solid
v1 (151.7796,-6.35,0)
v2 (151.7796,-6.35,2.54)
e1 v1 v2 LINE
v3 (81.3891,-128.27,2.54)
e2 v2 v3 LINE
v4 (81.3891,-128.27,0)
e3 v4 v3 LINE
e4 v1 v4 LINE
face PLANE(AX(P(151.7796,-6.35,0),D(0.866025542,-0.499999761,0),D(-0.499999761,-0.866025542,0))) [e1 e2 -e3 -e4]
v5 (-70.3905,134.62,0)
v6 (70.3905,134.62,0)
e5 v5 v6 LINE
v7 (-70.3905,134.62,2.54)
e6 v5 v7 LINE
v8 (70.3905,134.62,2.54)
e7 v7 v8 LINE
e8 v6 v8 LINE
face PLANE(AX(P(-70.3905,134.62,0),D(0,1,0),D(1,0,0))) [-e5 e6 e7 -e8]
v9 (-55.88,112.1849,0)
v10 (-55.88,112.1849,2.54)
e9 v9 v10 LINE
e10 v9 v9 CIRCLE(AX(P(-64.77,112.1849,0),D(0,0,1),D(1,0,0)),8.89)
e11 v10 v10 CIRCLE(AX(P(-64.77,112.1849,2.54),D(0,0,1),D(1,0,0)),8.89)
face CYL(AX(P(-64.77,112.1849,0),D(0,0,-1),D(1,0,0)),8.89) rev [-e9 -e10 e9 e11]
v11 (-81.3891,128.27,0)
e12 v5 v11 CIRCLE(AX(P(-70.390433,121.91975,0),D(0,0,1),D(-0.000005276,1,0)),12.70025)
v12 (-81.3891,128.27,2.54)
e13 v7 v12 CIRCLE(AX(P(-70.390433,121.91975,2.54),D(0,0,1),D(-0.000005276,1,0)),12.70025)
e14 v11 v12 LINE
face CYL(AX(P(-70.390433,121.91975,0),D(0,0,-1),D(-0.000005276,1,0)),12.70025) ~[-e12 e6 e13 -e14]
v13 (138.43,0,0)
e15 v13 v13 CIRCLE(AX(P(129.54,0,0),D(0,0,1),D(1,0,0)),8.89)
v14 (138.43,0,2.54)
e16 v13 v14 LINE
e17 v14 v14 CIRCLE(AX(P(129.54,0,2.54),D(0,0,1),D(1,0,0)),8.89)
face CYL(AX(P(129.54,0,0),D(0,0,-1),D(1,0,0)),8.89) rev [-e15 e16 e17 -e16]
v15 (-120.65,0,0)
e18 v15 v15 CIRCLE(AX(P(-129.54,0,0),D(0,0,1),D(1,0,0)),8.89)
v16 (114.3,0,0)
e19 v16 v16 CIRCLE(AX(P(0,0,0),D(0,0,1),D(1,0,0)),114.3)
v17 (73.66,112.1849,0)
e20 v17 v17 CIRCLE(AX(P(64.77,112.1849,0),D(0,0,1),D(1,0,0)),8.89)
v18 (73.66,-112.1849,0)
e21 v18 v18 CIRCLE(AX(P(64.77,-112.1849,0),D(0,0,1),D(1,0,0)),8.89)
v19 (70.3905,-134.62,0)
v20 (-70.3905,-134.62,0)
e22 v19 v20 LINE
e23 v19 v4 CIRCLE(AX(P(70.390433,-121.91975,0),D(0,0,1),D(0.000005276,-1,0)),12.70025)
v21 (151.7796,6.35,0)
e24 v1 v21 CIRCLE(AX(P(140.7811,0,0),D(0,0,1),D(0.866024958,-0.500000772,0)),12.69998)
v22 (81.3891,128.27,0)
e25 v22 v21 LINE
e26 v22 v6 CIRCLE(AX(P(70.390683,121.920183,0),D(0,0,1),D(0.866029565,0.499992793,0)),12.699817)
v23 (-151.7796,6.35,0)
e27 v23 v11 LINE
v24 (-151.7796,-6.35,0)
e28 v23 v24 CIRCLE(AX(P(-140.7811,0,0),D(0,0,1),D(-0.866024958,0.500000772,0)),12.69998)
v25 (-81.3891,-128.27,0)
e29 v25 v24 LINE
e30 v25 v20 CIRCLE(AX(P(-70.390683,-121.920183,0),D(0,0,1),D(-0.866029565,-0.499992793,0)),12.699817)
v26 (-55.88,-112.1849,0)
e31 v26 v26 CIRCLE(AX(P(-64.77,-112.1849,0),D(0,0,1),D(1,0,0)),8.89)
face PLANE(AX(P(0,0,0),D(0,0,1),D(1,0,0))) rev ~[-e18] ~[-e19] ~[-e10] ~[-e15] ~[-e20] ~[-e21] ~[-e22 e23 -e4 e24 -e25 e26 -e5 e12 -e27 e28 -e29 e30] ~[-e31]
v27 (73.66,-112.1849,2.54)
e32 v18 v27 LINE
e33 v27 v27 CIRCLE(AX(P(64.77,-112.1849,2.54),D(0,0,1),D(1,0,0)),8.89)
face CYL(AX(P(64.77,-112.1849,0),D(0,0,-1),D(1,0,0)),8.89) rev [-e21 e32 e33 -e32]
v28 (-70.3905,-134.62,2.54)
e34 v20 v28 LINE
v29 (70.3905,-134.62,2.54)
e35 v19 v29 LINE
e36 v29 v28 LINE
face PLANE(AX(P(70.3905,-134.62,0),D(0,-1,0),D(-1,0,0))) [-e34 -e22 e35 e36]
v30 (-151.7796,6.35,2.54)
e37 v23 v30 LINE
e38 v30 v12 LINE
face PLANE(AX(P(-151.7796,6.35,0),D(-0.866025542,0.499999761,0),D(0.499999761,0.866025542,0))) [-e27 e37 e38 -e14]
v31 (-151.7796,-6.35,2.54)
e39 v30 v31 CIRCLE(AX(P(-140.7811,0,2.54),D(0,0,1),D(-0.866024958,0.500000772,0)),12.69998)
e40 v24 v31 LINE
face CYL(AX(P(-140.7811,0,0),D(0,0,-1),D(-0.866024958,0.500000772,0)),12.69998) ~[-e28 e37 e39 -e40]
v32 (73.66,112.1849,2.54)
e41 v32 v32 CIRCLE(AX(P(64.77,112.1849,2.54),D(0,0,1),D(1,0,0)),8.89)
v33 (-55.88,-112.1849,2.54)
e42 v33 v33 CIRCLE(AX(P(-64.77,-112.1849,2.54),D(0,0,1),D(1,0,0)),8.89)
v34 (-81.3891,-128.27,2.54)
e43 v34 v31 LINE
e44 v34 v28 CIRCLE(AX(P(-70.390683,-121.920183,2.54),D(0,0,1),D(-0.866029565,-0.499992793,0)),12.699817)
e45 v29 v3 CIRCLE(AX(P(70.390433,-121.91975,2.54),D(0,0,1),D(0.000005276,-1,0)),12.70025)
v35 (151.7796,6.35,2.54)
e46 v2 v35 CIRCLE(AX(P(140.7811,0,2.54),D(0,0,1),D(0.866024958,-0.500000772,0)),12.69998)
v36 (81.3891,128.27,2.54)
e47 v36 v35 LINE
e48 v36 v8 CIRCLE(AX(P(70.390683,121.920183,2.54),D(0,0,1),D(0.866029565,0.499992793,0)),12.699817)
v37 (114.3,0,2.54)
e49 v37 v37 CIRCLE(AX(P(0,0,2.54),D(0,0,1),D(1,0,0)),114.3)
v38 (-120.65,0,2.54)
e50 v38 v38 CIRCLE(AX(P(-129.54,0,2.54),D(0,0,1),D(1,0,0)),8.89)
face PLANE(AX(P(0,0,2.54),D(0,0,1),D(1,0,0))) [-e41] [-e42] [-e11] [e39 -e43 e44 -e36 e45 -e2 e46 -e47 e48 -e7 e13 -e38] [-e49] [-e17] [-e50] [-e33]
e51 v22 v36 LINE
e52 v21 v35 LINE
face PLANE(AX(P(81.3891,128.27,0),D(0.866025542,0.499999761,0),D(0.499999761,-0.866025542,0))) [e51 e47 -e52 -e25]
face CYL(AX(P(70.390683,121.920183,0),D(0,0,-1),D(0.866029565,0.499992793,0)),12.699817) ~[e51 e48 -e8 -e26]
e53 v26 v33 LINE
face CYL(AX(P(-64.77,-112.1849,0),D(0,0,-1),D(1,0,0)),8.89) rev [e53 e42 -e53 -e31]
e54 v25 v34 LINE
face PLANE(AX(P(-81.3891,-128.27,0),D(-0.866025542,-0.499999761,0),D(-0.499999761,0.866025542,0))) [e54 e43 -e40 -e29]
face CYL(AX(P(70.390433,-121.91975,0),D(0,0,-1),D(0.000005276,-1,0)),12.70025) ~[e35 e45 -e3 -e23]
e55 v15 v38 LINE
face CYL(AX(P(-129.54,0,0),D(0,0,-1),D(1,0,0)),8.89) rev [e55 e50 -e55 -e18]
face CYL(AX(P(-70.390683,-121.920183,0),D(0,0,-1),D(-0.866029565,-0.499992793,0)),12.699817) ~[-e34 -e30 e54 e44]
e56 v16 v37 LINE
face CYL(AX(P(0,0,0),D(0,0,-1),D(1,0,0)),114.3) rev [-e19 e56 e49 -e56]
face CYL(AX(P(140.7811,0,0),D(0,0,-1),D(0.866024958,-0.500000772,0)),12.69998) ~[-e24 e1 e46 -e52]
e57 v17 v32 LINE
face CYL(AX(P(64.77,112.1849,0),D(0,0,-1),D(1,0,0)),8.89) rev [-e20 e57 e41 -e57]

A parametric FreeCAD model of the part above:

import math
import FreeCAD as App
import Part
import Sketcher

V = App.Vector
Q = App.Units.Quantity

doc = App.newDocument("Part")
body = doc.addObject("PartDesign::Body", "Body")

# Sketch on XY plane
sketch1 = body.newObject("Sketcher::SketchObject", "Sketch")
sketch1.AttachmentSupport = (doc.getObject("XY_Plane"), [""])
sketch1.MapMode = "FlatFace"
sketch1.addGeometry(Part.LineSegment(V(81, -128, 0), V(152, -6, 0)), False)
sketch1.addGeometry(Part.ArcOfCircle(Part.Circle(V(141, 0, 0), V(0, 0, 1), 13), math.radians(-30), math.radians(30)), False)
sketch1.addGeometry(Part.LineSegment(V(152, 6, 0), V(81, 128, 0)), False)
sketch1.addGeometry(Part.ArcOfCircle(Part.Circle(V(70, 122, 0), V(0, 0, 1), 13), math.radians(30), math.radians(90)), False)
sketch1.addGeometry(Part.LineSegment(V(70, 135, 0), V(-70, 135, 0)), False)
sketch1.addGeometry(Part.ArcOfCircle(Part.Circle(V(-70, 122, 0), V(0, 0, 1), 13), math.radians(90), math.radians(150)), False)
sketch1.addGeometry(Part.LineSegment(V(-81, 128, 0), V(-152, 6, 0)), False)
sketch1.addGeometry(Part.ArcOfCircle(Part.Circle(V(-141, 0, 0), V(0, 0, 1), 13), math.radians(150), math.radians(210)), False)
sketch1.addGeometry(Part.LineSegment(V(-152, -6, 0), V(-81, -128, 0)), False)
sketch1.addGeometry(Part.ArcOfCircle(Part.Circle(V(-70, -122, 0), V(0, 0, 1), 13), math.radians(-150), math.radians(-90)), False)
sketch1.addGeometry(Part.LineSegment(V(-70, -135, 0), V(70, -135, 0)), False)
sketch1.addGeometry(Part.ArcOfCircle(Part.Circle(V(70, -122, 0), V(0, 0, 1), 13), math.radians(-90), math.radians(-30)), False)
sketch1.addGeometry(Part.Circle(V(-65, -112, 0), V(0, 0, 1), 9), False)
sketch1.addGeometry(Part.Circle(V(65, -112, 0), V(0, 0, 1), 9), False)
sketch1.addGeometry(Part.Circle(V(-130, 0, 0), V(0, 0, 1), 9), False)
sketch1.addGeometry(Part.Circle(V(0, 0, 0), V(0, 0, 1), 114), False)
sketch1.addGeometry(Part.Circle(V(-65, 112, 0), V(0, 0, 1), 9), False)
sketch1.addGeometry(Part.Circle(V(130, 0, 0), V(0, 0, 1), 9), False)
sketch1.addGeometry(Part.Circle(V(65, 112, 0), V(0, 0, 1), 9), False)
sketch1.addConstraint(Sketcher.Constraint("Tangent", 0, 2, 1, 1))
sketch1.addConstraint(Sketcher.Constraint("Tangent", 1, 2, 2, 1))
sketch1.addConstraint(Sketcher.Constraint("Tangent", 2, 2, 3, 1))
sketch1.addConstraint(Sketcher.Constraint("Tangent", 3, 2, 4, 1))
sketch1.addConstraint(Sketcher.Constraint("Tangent", 4, 2, 5, 1))
sketch1.addConstraint(Sketcher.Constraint("Tangent", 5, 2, 6, 1))
sketch1.addConstraint(Sketcher.Constraint("Tangent", 6, 2, 7, 1))
sketch1.addConstraint(Sketcher.Constraint("Tangent", 7, 2, 8, 1))
sketch1.addConstraint(Sketcher.Constraint("Tangent", 8, 2, 9, 1))
sketch1.addConstraint(Sketcher.Constraint("Tangent", 9, 2, 10, 1))
sketch1.addConstraint(Sketcher.Constraint("Tangent", 10, 2, 11, 1))
sketch1.addConstraint(Sketcher.Constraint("Tangent", 11, 2, 0, 1))
sketch1.addConstraint(Sketcher.Constraint("Horizontal", 4))
sketch1.addConstraint(Sketcher.Constraint("Horizontal", 10))
sketch1.addConstraint(Sketcher.Constraint("Coincident", 15, 3, -1, 1))
sketch1.addConstraint(Sketcher.Constraint("Equal", 1, 3))
sketch1.addConstraint(Sketcher.Constraint("Equal", 3, 5))
sketch1.addConstraint(Sketcher.Constraint("Equal", 5, 7))
sketch1.addConstraint(Sketcher.Constraint("Equal", 7, 9))
sketch1.addConstraint(Sketcher.Constraint("Equal", 9, 11))
sketch1.addConstraint(Sketcher.Constraint("Equal", 12, 13))
sketch1.addConstraint(Sketcher.Constraint("Equal", 13, 14))
sketch1.addConstraint(Sketcher.Constraint("Equal", 14, 16))
sketch1.addConstraint(Sketcher.Constraint("Equal", 16, 17))
sketch1.addConstraint(Sketcher.Constraint("Equal", 17, 18))
sketch1.addConstraint(Sketcher.Constraint("Symmetric", 1, 3, 7, 3, -1, 1))
sketch1.addConstraint(Sketcher.Constraint("Symmetric", 3, 3, 9, 3, -1, 1))
sketch1.addConstraint(Sketcher.Constraint("Symmetric", 13, 3, 16, 3, -1, 1))
sketch1.addConstraint(Sketcher.Constraint("Symmetric", 14, 3, 17, 3, -1, 1))
sketch1.addConstraint(Sketcher.Constraint("Symmetric", 12, 3, 18, 3, -1, 1))
sketch1.addConstraint(Sketcher.Constraint("Symmetric", 12, 3, 13, 3, -2))
sketch1.addConstraint(Sketcher.Constraint("Symmetric", 2, 2, 5, 2, -2))
sketch1.addConstraint(Sketcher.Constraint("PointOnObject", 14, 3, -1))
sketch1.addConstraint(Sketcher.Constraint("Parallel", 0, 6))
sketch1.addConstraint(Sketcher.Constraint("Diameter", 15, Q("9 in")))
sketch1.addConstraint(Sketcher.Constraint("Diameter", 12, Q("0.7 in")))
sketch1.addConstraint(Sketcher.Constraint("Radius", 1, Q("0.5 in")))
sketch1.addConstraint(Sketcher.Constraint("DistanceY", 0, 2, 1, 2, Q("0.5 in")))
sketch1.addConstraint(Sketcher.Constraint("DistanceY", -1, 1, 3, 3, Q("4.8 in")))
sketch1.addConstraint(Sketcher.Constraint("DistanceX", 14, 3, -1, 1, Q("5.1 in")))
sketch1.addConstraint(Sketcher.Constraint("DistanceX", 12, 3, 13, 3, Q("5.1 in")))
sketch1.addConstraint(Sketcher.Constraint("DistanceX", 4, 2, 4, 1, 140.781))
sketch1.addConstraint(Sketcher.Constraint("DistanceY", 12, 3, -1, 1, 112.185))
pad1 = body.newObject("PartDesign::Pad", "Pad")
pad1.Profile = sketch1
pad1.Length = Q("0.1 in")

doc.recompute()
